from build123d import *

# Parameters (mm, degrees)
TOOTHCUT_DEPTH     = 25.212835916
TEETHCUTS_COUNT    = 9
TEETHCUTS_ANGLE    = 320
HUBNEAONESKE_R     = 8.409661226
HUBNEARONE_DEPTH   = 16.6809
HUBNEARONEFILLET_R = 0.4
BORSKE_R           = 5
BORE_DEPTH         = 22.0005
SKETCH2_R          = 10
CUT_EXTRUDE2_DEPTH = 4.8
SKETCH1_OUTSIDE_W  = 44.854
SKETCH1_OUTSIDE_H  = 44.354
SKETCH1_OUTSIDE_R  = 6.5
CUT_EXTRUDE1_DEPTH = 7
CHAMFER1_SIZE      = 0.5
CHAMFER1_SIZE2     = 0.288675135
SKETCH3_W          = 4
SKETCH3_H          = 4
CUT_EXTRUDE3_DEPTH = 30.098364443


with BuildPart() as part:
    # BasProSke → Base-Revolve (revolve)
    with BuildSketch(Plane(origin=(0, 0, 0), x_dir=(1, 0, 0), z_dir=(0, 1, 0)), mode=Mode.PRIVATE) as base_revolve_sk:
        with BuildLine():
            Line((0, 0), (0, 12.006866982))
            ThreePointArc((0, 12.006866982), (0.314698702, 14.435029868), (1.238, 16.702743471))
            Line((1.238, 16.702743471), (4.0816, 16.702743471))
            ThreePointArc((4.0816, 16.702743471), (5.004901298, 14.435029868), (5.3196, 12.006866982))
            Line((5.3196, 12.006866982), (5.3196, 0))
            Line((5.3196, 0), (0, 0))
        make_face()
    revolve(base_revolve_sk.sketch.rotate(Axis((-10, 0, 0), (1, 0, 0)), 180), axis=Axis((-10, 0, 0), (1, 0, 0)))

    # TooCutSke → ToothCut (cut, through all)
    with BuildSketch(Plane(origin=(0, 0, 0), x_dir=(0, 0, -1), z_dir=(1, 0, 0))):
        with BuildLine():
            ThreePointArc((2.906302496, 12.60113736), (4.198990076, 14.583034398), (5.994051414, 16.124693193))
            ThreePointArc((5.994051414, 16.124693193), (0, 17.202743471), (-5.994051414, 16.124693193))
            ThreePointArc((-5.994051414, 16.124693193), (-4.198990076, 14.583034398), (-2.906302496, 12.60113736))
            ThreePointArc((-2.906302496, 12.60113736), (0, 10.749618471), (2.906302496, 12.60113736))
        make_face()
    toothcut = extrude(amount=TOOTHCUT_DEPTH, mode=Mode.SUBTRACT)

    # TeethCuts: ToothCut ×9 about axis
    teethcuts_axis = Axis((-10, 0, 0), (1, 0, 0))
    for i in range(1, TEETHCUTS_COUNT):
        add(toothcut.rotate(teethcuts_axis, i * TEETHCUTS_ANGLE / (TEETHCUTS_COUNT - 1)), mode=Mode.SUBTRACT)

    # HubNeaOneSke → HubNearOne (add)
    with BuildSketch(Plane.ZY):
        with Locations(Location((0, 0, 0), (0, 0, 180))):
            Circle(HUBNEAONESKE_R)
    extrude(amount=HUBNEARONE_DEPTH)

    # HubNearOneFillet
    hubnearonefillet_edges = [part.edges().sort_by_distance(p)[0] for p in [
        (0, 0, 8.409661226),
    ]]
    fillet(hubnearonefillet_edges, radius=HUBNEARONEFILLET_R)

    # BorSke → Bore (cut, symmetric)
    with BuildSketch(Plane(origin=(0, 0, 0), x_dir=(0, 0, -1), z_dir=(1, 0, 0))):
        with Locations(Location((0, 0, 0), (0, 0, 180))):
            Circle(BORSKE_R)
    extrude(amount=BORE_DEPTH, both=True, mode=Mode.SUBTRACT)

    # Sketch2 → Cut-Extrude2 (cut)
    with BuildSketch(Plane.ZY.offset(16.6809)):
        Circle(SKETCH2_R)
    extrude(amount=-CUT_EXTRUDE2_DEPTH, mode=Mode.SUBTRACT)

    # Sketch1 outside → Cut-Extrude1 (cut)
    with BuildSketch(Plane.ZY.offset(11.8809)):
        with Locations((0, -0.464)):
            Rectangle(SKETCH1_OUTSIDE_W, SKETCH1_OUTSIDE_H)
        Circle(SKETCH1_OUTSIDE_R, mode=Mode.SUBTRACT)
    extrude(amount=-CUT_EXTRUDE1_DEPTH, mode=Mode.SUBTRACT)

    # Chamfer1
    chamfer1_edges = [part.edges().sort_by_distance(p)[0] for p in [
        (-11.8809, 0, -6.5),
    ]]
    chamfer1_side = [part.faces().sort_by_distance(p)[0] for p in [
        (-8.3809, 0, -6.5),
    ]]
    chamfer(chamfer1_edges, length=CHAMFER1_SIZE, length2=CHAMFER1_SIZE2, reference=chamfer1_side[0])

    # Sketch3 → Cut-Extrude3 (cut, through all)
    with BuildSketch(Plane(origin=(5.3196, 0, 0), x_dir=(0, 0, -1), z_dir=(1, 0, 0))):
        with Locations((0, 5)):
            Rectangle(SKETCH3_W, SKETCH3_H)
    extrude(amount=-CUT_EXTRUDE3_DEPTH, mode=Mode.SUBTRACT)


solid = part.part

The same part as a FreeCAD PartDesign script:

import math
import FreeCAD as App
import Part
import Sketcher
Q = App.Units.Quantity


def edges_at(feature, points):
    """Names of the edges that pass closest to the given points."""
    edges = feature.Shape.Edges
    near = lambda p: min(range(len(edges)), key=lambda i: edges[i].distToShape(Part.Vertex(*p))[0])
    return sorted({f"Edge{near(p) + 1}" for p in points})

doc = App.newDocument("Part")
body = doc.addObject("PartDesign::Body", "Body")

# Sketch on XZ plane
sketch1 = body.newObject("Sketcher::SketchObject", "Sketch")
sketch1.AttachmentSupport = (doc.getObject("XZ_Plane"), [""])
sketch1.MapMode = "FlatFace"
sketch1.addGeometry([
    Part.LineSegment(App.Vector(0, -12.006867, 0), App.Vector(0, 0, 0)),  # 0
    Part.LineSegment(App.Vector(0, 0, 0), App.Vector(5.3196, 0, 0)),  # 1
    Part.LineSegment(App.Vector(5.3196, 0, 0), App.Vector(5.3196, -12.006867, 0)),  # 2
    Part.ArcOfCircle(Part.Circle(App.Vector(-4.2054, -12.006867, 0), App.Vector(0, 0, 1), 9.525), math.radians(-29.53831), math.radians(0)),  # 3
    Part.LineSegment(App.Vector(4.0816, -16.702743, 0), App.Vector(1.238, -16.702743, 0)),  # 4
    Part.ArcOfCircle(Part.Circle(App.Vector(9.525, -12.006867, 0), App.Vector(0, 0, 1), 9.525), math.radians(180), math.radians(209.53831)),  # 5
], False)
sketch1.addConstraint([
    Sketcher.Constraint("Coincident", 0, 2, 1, 1),
    Sketcher.Constraint("Coincident", 1, 2, 2, 1),
    Sketcher.Constraint("Tangent", 2, 2, 3, 2),
    Sketcher.Constraint("Coincident", 3, 1, 4, 1),
    Sketcher.Constraint("Coincident", 4, 2, 5, 2),
    Sketcher.Constraint("Tangent", 5, 1, 0, 1),
    Sketcher.Constraint("Vertical", 0),
    Sketcher.Constraint("Horizontal", 1),
    Sketcher.Constraint("Vertical", 2),
    Sketcher.Constraint("Horizontal", 4),
    Sketcher.Constraint("Coincident", 0, 2, -1, 1),
    Sketcher.Constraint("Equal", 3, 5),
    Sketcher.Constraint("Horizontal", 3, 3, 5, 3),
    Sketcher.Constraint("Radius", 3, Q("9.525 mm")),
    Sketcher.Constraint("DistanceX", 1, 1, 1, 2, Q("5.3196 mm")),
    Sketcher.Constraint("DistanceX", 4, 2, 4, 1, Q("2.8436 mm")),
    Sketcher.Constraint("DistanceY", 0, 1, 0, 2, Q("12.006867 mm")),
])
revolution = body.newObject("PartDesign::Revolution", "Revolution")
revolution.Profile = sketch1
revolution.ReferenceAxis = (sketch1, ["H_Axis"])
revolution.Angle = 360

# Sketch on YZ plane
sketch2 = body.newObject("Sketcher::SketchObject", "Sketch001")
sketch2.AttachmentSupport = (doc.getObject("YZ_Plane"), [""])
sketch2.MapMode = "FlatFace"
sketch2.addGeometry([
    Part.ArcOfCircle(Part.Circle(App.Vector(9.058751, -10.502974, 0), App.Vector(0, 0, 1), 8.382), math.radians(32.542785), math.radians(65)),
    Part.ArcOfCircle(Part.Circle(App.Vector(0, 0, 0), App.Vector(0, 0, 1), 17.202743), math.radians(-20.391671), math.radians(20.391671)),
    Part.ArcOfCircle(Part.Circle(App.Vector(9.058751, 10.502974, 0), App.Vector(0, 0, 1), 8.382), math.radians(-65), math.radians(-32.542785)),
    Part.ArcOfCircle(Part.Circle(App.Vector(13.956368, 0, 0), App.Vector(0, 0, 1), 3.20675), math.radians(115), math.radians(245)),
], False)
sketch2.addConstraint([
    Sketcher.Constraint("Coincident", 0, 1, 1, 1),
    Sketcher.Constraint("Coincident", 1, 2, 2, 2),
    Sketcher.Constraint("Tangent", 2, 1, 3, 1),
    Sketcher.Constraint("Tangent", 3, 2, 0, 2),
    Sketcher.Constraint("Coincident", 1, 3, -1, 1),
    Sketcher.Constraint("Equal", 0, 2),
    Sketcher.Constraint("Symmetric", 0, 3, 2, 3, -1),
    Sketcher.Constraint("Radius", 0, Q("8.382 mm")),
    Sketcher.Constraint("Radius", 3, Q("3.20675 mm")),
    Sketcher.Constraint("Radius", 1, Q("17.202743 mm")),
    Sketcher.Constraint("DistanceX", -1, 1, 0, 3, Q("9.058751 mm")),
    Sketcher.Constraint("DistanceX", -1, 1, 3, 3, Q("13.956368 mm")),
])
pocket1 = body.newObject("PartDesign::Pocket", "Pocket")
pocket1.Profile = sketch2
pocket1.Type = "ThroughAll"
pocket1.Reversed = True
doc.recompute()

polarpattern = body.newObject("PartDesign::PolarPattern", "PolarPattern")
polarpattern.Originals = [pocket1]
polarpattern.Axis = (doc.getObject("X_Axis"), [""])
polarpattern.Angle = 360
polarpattern.Occurrences = 9
body.Tip = polarpattern

# Sketch on YZ plane
sketch3 = body.newObject("Sketcher::SketchObject", "Sketch002")
sketch3.AttachmentSupport = (doc.getObject("YZ_Plane"), [""])
sketch3.MapMode = "FlatFace"
sketch3.addGeometry(Part.Circle(App.Vector(0, 0, 0), App.Vector(0, 0, 1), 8.409661), False)
sketch3.addConstraint([
    Sketcher.Constraint("Coincident", 0, 3, -1, 1),
    Sketcher.Constraint("Diameter", 0, Q("16.819322 mm")),
])
pad1 = body.newObject("PartDesign::Pad", "Pad")
pad1.Profile = sketch3
pad1.Length = 16.6809
pad1.Reversed = True
doc.recompute()

fillet = body.newObject("PartDesign::Fillet", "Fillet")
fillet.Base = (pad1, edges_at(pad1, [(0, 0, 8.41)]))
fillet.Radius = 0.4

# Sketch on YZ plane
sketch4 = body.newObject("Sketcher::SketchObject", "Sketch003")
sketch4.AttachmentSupport = (doc.getObject("YZ_Plane"), [""])
sketch4.MapMode = "FlatFace"
sketch4.addGeometry(Part.Circle(App.Vector(0, 0, 0), App.Vector(0, 0, 1), 5), False)
sketch4.addConstraint([
    Sketcher.Constraint("Coincident", 0, 3, -1, 1),
    Sketcher.Constraint("Diameter", 0, Q("10 mm")),
])
pocket2 = body.newObject("PartDesign::Pocket", "Pocket001")
pocket2.Profile = sketch4
pocket2.Length = 44.001
pocket2.Midplane = True

# Sketch on YZ plane
sketch5 = body.newObject("Sketcher::SketchObject", "Sketch004")
sketch5.AttachmentSupport = (doc.getObject("YZ_Plane"), [""])
sketch5.MapMode = "FlatFace"
sketch5.AttachmentOffset = App.Placement(App.Vector(0, 0, -16.6809), App.Rotation())
sketch5.addGeometry(Part.Circle(App.Vector(0, 0, 0), App.Vector(0, 0, 1), 10), False)
sketch5.addConstraint([
    Sketcher.Constraint("Coincident", 0, 3, -1, 1),
    Sketcher.Constraint("Diameter", 0, Q("20 mm")),
])
pocket3 = body.newObject("PartDesign::Pocket", "Pocket002")
pocket3.Profile = sketch5
pocket3.Length = 4.8
pocket3.Reversed = True

# Sketch on YZ plane
sketch6 = body.newObject("Sketcher::SketchObject", "Sketch005")
sketch6.AttachmentSupport = (doc.getObject("YZ_Plane"), [""])
sketch6.MapMode = "FlatFace"
sketch6.AttachmentOffset = App.Placement(App.Vector(0, 0, -11.8809), App.Rotation())
sketch6.addGeometry([
    Part.LineSegment(App.Vector(21.713, -22.427, 0), App.Vector(-22.641, -22.427, 0)),  # 0
    Part.LineSegment(App.Vector(-22.641, -22.427, 0), App.Vector(-22.641, 22.427, 0)),  # 1
    Part.LineSegment(App.Vector(-22.641, 22.427, 0), App.Vector(21.713, 22.427, 0)),  # 2
    Part.LineSegment(App.Vector(21.713, 22.427, 0), App.Vector(21.713, -22.427, 0)),  # 3
    Part.Circle(App.Vector(0, 0, 0), App.Vector(0, 0, 1), 6.5),  # 4
], False)
sketch6.addConstraint([
    Sketcher.Constraint("Coincident", 0, 2, 1, 1),
    Sketcher.Constraint("Coincident", 1, 2, 2, 1),
    Sketcher.Constraint("Coincident", 2, 2, 3, 1),
    Sketcher.Constraint("Coincident", 3, 2, 0, 1),
    Sketcher.Constraint("Horizontal", 0),
    Sketcher.Constraint("Vertical", 1),
    Sketcher.Constraint("Horizontal", 2),
    Sketcher.Constraint("Vertical", 3),
    Sketcher.Constraint("Coincident", 4, 3, -1, 1),
    Sketcher.Constraint("Diameter", 4, Q("13 mm")),
    Sketcher.Constraint("DistanceX", 0, 2, 0, 1, Q("44.354 mm")),
    Sketcher.Constraint("DistanceY", 1, 1, 1, 2, Q("44.854 mm")),
    Sketcher.Constraint("DistanceX", 0, 2, -1, 1, Q("22.641 mm")),
    Sketcher.Constraint("DistanceY", 0, 2, -1, 1, Q("22.427 mm")),
])
pocket4 = body.newObject("PartDesign::Pocket", "Pocket003")
pocket4.Profile = sketch6
pocket4.Length = 7
pocket4.Reversed = True
doc.recompute()

chamfer = body.newObject("PartDesign::Chamfer", "Chamfer")
chamfer.Base = (pocket4, edges_at(pocket4, [(-11.881, 0, -6.5)]))
chamfer.ChamferType = "Two distances"
chamfer.Size = 0.5
chamfer.Size2 = 0.288675

# Sketch on YZ plane
sketch7 = body.newObject("Sketcher::SketchObject", "Sketch006")
sketch7.AttachmentSupport = (doc.getObject("YZ_Plane"), [""])
sketch7.MapMode = "FlatFace"
sketch7.AttachmentOffset = App.Placement(App.Vector(0, 0, 5.3196), App.Rotation())
sketch7.addGeometry([
    Part.LineSegment(App.Vector(7, 2, 0), App.Vector(3, 2, 0)),
    Part.LineSegment(App.Vector(3, 2, 0), App.Vector(3, -2, 0)),
    Part.LineSegment(App.Vector(3, -2, 0), App.Vector(7, -2, 0)),
    Part.LineSegment(App.Vector(7, -2, 0), App.Vector(7, 2, 0)),
], False)
sketch7.addConstraint([
    Sketcher.Constraint("Coincident", 0, 2, 1, 1),
    Sketcher.Constraint("Coincident", 1, 2, 2, 1),
    Sketcher.Constraint("Coincident", 2, 2, 3, 1),
    Sketcher.Constraint("Coincident", 3, 2, 0, 1),
    Sketcher.Constraint("Horizontal", 0),
    Sketcher.Constraint("Vertical", 1),
    Sketcher.Constraint("Horizontal", 2),
    Sketcher.Constraint("Vertical", 3),
    Sketcher.Constraint("Equal", 2, 1),
    Sketcher.Constraint("DistanceX", 0, 2, 0, 1, Q("4 mm")),
    Sketcher.Constraint("DistanceX", -1, 1, 0, 2, Q("3 mm")),
    Sketcher.Constraint("DistanceY", -1, 1, 0, 2, Q("2 mm")),
])
pocket5 = body.newObject("PartDesign::Pocket", "Pocket004")
pocket5.Profile = sketch7
pocket5.Type = "ThroughAll"

doc.recompute()
